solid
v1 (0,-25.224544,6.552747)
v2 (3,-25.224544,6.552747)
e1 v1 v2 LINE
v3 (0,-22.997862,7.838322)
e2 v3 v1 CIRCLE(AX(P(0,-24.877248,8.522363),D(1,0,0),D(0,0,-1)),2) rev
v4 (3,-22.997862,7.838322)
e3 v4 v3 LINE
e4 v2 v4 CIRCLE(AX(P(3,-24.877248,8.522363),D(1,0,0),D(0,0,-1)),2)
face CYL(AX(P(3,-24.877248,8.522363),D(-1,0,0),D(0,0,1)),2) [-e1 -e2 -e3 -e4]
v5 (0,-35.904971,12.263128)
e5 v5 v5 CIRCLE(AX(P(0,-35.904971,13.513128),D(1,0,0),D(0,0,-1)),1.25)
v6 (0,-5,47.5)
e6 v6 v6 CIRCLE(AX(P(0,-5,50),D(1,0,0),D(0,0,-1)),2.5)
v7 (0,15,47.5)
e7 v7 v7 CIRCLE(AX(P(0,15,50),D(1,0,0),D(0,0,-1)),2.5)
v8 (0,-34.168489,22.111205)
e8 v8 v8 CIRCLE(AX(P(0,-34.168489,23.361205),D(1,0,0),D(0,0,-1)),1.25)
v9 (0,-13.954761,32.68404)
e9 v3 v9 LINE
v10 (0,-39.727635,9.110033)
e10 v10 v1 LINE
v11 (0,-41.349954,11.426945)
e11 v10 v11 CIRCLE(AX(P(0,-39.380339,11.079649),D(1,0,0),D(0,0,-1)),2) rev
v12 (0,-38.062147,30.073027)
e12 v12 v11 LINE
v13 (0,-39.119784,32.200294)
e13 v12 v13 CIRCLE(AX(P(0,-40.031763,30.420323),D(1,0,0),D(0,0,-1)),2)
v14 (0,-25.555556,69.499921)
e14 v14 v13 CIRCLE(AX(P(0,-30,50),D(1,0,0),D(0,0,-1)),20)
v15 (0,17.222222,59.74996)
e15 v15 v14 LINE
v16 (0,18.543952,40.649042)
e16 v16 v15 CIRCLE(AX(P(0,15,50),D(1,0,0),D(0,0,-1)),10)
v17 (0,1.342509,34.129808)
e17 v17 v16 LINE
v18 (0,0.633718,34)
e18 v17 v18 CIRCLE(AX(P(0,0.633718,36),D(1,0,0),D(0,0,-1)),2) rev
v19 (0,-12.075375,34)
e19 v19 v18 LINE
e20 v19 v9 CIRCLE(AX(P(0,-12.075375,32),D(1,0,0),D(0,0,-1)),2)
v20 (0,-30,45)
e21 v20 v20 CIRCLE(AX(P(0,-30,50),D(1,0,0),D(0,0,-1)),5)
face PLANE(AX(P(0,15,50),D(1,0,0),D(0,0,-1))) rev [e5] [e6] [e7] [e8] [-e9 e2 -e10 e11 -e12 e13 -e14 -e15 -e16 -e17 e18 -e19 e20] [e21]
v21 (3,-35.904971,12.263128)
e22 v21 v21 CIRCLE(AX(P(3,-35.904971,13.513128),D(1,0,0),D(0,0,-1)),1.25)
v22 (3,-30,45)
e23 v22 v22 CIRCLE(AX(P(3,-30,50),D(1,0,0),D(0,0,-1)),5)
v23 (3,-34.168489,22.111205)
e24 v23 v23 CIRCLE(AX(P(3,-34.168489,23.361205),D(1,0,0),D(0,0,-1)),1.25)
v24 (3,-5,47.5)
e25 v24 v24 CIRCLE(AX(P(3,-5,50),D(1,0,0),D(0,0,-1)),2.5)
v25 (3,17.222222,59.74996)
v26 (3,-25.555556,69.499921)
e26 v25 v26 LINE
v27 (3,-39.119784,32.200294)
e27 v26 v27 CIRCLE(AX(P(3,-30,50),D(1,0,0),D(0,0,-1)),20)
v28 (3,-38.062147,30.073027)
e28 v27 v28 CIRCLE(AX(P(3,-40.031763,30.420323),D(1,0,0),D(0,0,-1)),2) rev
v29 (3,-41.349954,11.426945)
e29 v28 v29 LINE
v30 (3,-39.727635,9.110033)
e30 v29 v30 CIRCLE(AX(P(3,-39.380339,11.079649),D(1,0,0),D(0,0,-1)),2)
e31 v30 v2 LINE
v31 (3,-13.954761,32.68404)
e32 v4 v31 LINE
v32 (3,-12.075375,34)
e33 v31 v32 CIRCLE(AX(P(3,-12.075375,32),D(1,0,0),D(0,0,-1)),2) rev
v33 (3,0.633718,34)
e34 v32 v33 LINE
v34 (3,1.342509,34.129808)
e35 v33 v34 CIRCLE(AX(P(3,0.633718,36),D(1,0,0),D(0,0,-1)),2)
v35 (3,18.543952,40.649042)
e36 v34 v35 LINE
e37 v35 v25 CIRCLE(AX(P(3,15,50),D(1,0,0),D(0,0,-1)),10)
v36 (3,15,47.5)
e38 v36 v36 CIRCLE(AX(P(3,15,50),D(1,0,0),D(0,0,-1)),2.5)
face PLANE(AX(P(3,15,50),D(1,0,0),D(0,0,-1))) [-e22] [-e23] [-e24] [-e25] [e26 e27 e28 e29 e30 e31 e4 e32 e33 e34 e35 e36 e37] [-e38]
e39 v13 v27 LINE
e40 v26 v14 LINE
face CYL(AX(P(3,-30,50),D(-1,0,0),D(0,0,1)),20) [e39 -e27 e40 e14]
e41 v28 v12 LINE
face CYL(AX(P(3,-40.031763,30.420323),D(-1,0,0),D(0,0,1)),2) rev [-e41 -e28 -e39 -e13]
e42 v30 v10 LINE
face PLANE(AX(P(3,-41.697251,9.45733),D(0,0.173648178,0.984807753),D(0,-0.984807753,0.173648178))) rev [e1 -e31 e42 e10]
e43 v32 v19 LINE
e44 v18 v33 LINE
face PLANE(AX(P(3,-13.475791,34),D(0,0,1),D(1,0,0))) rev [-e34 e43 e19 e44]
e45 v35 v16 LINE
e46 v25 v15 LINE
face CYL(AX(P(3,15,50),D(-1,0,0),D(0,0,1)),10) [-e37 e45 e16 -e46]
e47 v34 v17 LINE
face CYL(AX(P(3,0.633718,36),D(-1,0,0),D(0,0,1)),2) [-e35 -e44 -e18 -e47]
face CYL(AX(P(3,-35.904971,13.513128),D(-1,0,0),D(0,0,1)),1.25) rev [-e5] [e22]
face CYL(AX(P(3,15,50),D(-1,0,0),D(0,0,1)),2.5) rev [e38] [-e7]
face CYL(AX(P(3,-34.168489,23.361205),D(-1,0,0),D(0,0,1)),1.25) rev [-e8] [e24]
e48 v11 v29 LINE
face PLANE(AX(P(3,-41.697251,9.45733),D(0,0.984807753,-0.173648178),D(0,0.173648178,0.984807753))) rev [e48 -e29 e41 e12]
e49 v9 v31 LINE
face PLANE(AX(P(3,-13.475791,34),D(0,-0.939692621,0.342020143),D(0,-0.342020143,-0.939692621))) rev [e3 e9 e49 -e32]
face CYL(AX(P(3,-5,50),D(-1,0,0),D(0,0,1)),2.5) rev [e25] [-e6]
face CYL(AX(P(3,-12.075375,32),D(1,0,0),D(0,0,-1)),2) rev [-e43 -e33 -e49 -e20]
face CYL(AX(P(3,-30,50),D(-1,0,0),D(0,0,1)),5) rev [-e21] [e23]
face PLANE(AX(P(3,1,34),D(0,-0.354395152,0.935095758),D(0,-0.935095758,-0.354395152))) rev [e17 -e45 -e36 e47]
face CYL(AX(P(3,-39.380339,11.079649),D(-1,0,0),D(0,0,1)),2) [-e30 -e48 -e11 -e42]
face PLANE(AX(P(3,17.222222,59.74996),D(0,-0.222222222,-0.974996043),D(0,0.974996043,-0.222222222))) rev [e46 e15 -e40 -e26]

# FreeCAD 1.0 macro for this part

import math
import FreeCAD as App
import Part
import Sketcher
from FreeCAD import Vector
Q = App.Units.Quantity


def edges_at(feature, points):
    """Names of the edges that pass closest to the given points."""
    edges = feature.Shape.Edges
    near = lambda p: min(range(len(edges)), key=lambda i: edges[i].distToShape(Part.Vertex(*p))[0])
    return sorted({f"Edge{near(p) + 1}" for p in points})

doc = App.newDocument("Part")
body = doc.addObject("PartDesign::Body", "Body")

# Sketch on YZ plane
sketch1 = doc.addObject("Sketcher::SketchObject", "Sketch")
body.addObject(sketch1)
sketch1.AttachmentSupport = (doc.YZ_Plane, [""])
sketch1.MapMode = "FlatFace"
sketch1.addGeometry(Part.LineSegment(Vector(17.2, 59.7, 0), Vector(-25.6, 69.5, 0)), False)
sketch1.addGeometry(Part.ArcOfCircle(Part.Circle(Vector(-30, 50, 0), Vector(0, 0, 1), 20), math.radians(77), math.radians(247)), False)
sketch1.addGeometry(Part.LineSegment(Vector(-37.8, 31.6, 0), Vector(-41.7, 9.5, 0)), False)
sketch1.addGeometry(Part.LineSegment(Vector(-41.7, 9.5, 0), Vector(-23.6, 6.3, 0)), False)
sketch1.addGeometry(Part.LineSegment(Vector(-23.6, 6.3, 0), Vector(-13.5, 34, 0)), False)
sketch1.addGeometry(Part.LineSegment(Vector(-13.5, 34, 0), Vector(1, 34, 0)), False)
sketch1.addGeometry(Part.LineSegment(Vector(1, 34, 0), Vector(18.5, 40.6, 0)), False)
sketch1.addGeometry(Part.ArcOfCircle(Part.Circle(Vector(15, 50, 0), Vector(0, 0, 1), 10), math.radians(-69), math.radians(77)), False)
sketch1.addGeometry(Part.Circle(Vector(-30, 50, 0), Vector(0, 0, 1), 5), False)
sketch1.addGeometry(Part.Circle(Vector(-34.2, 23.4, 0), Vector(0, 0, 1), 1.2), False)
sketch1.addGeometry(Part.Circle(Vector(-35.9, 13.5, 0), Vector(0, 0, 1), 1.2), False)
sketch1.addGeometry(Part.Circle(Vector(-5, 50, 0), Vector(0, 0, 1), 2.5), False)
sketch1.addGeometry(Part.Circle(Vector(15, 50, 0), Vector(0, 0, 1), 2.5), False)
sketch1.addConstraint(Sketcher.Constraint("Tangent", 0, 2, 1, 1))
sketch1.addConstraint(Sketcher.Constraint("Coincident", 1, 2, 2, 1))
sketch1.addConstraint(Sketcher.Constraint("Coincident", 2, 2, 3, 1))
sketch1.addConstraint(Sketcher.Constraint("Coincident", 3, 2, 4, 1))
sketch1.addConstraint(Sketcher.Constraint("Coincident", 4, 2, 5, 1))
sketch1.addConstraint(Sketcher.Constraint("Coincident", 5, 2, 6, 1))
sketch1.addConstraint(Sketcher.Constraint("Tangent", 6, 2, 7, 1))
sketch1.addConstraint(Sketcher.Constraint("Tangent", 7, 2, 0, 1))
sketch1.addConstraint(Sketcher.Constraint("Horizontal", 5))
sketch1.addConstraint(Sketcher.Constraint("Coincident", 8, 3, 1, 3))
sketch1.addConstraint(Sketcher.Constraint("Coincident", 12, 3, 7, 3))
sketch1.addConstraint(Sketcher.Constraint("Equal", 9, 10))
sketch1.addConstraint(Sketcher.Constraint("Equal", 11, 12))
sketch1.addConstraint(Sketcher.Constraint("Perpendicular", 2, 3))
sketch1.addConstraint(Sketcher.Constraint("Horizontal", 1, 3, 7, 3))
sketch1.addConstraint(Sketcher.Constraint("Horizontal", 8, 3, 11, 3))
sketch1.addConstraint(Sketcher.Constraint("Diameter", 8, Q("10 mm")))
sketch1.addConstraint(Sketcher.Constraint("Diameter", 11, Q("5 mm")))
sketch1.addConstraint(Sketcher.Constraint("Radius", 1, Q("20 mm")))
sketch1.addConstraint(Sketcher.Constraint("Radius", 7, Q("10 mm")))
sketch1.addConstraint(Sketcher.Constraint("Diameter", 9, Q("2.5 mm")))
sketch1.addConstraint(Sketcher.Constraint("Angle", 2, Q("-100 deg")))
sketch1.addConstraint(Sketcher.Constraint("Angle", 4, Q("70 deg")))
sketch1.addConstraint(Sketcher.Constraint("DistanceX", 1, 3, -1, 1, Q("30 mm")))
sketch1.addConstraint(Sketcher.Constraint("DistanceY", -1, 1, 1, 3, Q("50 mm")))
sketch1.addConstraint(Sketcher.Constraint("DistanceX", -1, 1, 7, 3, Q("15 mm")))
sketch1.addConstraint(Sketcher.Constraint("DistanceX", 11, 3, -1, 1, Q("5 mm")))
sketch1.addConstraint(Sketcher.Constraint("DistanceY", -1, 1, 4, 2, Q("34 mm")))
sketch1.addConstraint(Sketcher.Constraint("DistanceX", -1, 1, 5, 2, Q("1 mm")))
sketch1.addConstraint(Sketcher.Constraint("DistanceY", 3, 2, 2, 2, Q("3.195999 mm")))
sketch1.addConstraint(Sketcher.Constraint("DistanceX", 5, 1, 5, 2, Q("14.475791 mm")))
sketch1.addConstraint(Sketcher.Constraint("DistanceX", 9, 3, 4, 2, Q("20.692699 mm")))
sketch1.addConstraint(Sketcher.Constraint("DistanceX", 10, 3, -1, 1, Q("35.904971 mm")))
sketch1.addConstraint(Sketcher.Constraint("DistanceX", 2, 2, -1, 1, Q("41.697251 mm")))
sketch1.addConstraint(Sketcher.Constraint("DistanceY", 10, 3, 1, 2, Q("18.06891 mm")))
sketch1.addConstraint(Sketcher.Constraint("DistanceY", -1, 1, 9, 3, Q("23.361205 mm")))
pad1 = doc.addObject("PartDesign::Pad", "Pad")
body.addObject(pad1)
pad1.Profile = sketch1
pad1.Length = 3
doc.recompute()

fillet = doc.addObject("PartDesign::Fillet", "Fillet")
body.addObject(fillet)
fillet.Base = (pad1, edges_at(pad1, [
    (1.5, 1, 34),
    (1.5, -13.476, 34),
    (1.5, -23.572, 6.261),
    (1.5, -41.697, 9.457),
    (1.5, -37.796, 31.582),
]))
fillet.Radius = 2

doc.recompute()
